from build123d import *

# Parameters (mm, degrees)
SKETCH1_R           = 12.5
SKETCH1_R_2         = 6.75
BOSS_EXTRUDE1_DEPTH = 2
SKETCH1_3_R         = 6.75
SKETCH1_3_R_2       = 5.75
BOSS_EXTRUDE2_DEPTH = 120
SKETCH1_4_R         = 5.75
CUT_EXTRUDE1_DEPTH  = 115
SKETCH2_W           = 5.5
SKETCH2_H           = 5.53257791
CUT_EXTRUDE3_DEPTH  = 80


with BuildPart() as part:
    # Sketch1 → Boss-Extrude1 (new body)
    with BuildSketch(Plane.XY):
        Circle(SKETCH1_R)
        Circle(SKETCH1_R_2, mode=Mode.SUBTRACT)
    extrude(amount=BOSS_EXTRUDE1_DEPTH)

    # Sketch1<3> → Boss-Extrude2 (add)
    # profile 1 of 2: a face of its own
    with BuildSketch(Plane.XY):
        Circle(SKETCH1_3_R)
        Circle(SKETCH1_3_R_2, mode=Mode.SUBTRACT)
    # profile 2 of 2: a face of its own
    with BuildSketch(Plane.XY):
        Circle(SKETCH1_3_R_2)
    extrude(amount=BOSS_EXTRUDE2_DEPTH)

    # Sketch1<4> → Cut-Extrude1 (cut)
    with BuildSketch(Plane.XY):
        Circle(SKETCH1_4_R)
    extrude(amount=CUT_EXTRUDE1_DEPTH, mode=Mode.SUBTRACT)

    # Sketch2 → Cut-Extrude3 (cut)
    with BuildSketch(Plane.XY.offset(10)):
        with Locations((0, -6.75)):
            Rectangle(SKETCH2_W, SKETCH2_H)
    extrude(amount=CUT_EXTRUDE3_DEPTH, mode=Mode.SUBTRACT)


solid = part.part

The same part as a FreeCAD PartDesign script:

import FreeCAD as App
import Part
import Sketcher
Q = App.Units.Quantity


def add_polygon(sketch, points):
    """Adds a closed chain of lines whose ends are joined by coincident constraints."""
    first, n = sketch.GeometryCount, len(points)
    for a, b in zip(points, points[1:] + points[:1]):
        sketch.addGeometry(Part.LineSegment(App.Vector(*a, 0), App.Vector(*b, 0)), False)
    for i in range(n):
        sketch.addConstraint(Sketcher.Constraint("Coincident", first + i, 2, first + (i + 1) % n, 1))

doc = App.newDocument("Part")
body = doc.addObject("PartDesign::Body", "Body")

sketch1 = body.newObject("Sketcher::SketchObject", "Sketch")
sketch1.AttachmentSupport = (doc.getObject("XY_Plane"), [""])
sketch1.MapMode = "FlatFace"
sketch1.addGeometry([
    Part.Circle(App.Vector(0, 0, 0), App.Vector(0, 0, 1), 12),
    Part.Circle(App.Vector(0, 0, 0), App.Vector(0, 0, 1), 7),
], False)
sketch1.addConstraint([
    Sketcher.Constraint("Coincident", 0, 3, -1, 1),
    Sketcher.Constraint("Coincident", 1, 3, -1, 1),
    Sketcher.Constraint("Diameter", 0, Q("25 mm")),
    Sketcher.Constraint("Diameter", 1, Q("13.5 mm")),
])
pad1 = body.newObject("PartDesign::Pad", "Pad")
pad1.Profile = sketch1
pad1.Length = 2

sketch2 = body.newObject("Sketcher::SketchObject", "Sketch001")
sketch2.AttachmentSupport = (doc.getObject("XY_Plane"), [""])
sketch2.MapMode = "FlatFace"
sketch2.addGeometry(Part.Circle(App.Vector(0, 0, 0), App.Vector(0, 0, 1), 7), False)
sketch2.addConstraint([
    Sketcher.Constraint("Coincident", 0, 3, -1, 1),
    Sketcher.Constraint("Diameter", 0, Q("13.5 mm")),
])
pad2 = body.newObject("PartDesign::Pad", "Pad001")
pad2.Profile = sketch2
pad2.Length = 120

sketch3 = body.newObject("Sketcher::SketchObject", "Sketch002")
sketch3.AttachmentSupport = (doc.getObject("XY_Plane"), [""])
sketch3.MapMode = "FlatFace"
sketch3.addGeometry(Part.Circle(App.Vector(0, 0, 0), App.Vector(0, 0, 1), 6), False)
sketch3.addConstraint([
    Sketcher.Constraint("Coincident", 0, 3, -1, 1),
    Sketcher.Constraint("Diameter", 0, Q("11.5 mm")),
])
pocket1 = body.newObject("PartDesign::Pocket", "Pocket")
pocket1.Profile = sketch3
pocket1.Length = 115
pocket1.Reversed = True

sketch4 = body.newObject("Sketcher::SketchObject", "Sketch003")
sketch4.AttachmentSupport = (doc.getObject("XY_Plane"), [""])
sketch4.MapMode = "FlatFace"
sketch4.AttachmentOffset = App.Placement(App.Vector(0, 0, 10), App.Rotation())
add_polygon(sketch4, [(-3, -4), (-3, -10), (3, -10), (3, -4)])
sketch4.addConstraint([
    Sketcher.Constraint("Vertical", 0),
    Sketcher.Constraint("Horizontal", 1),
    Sketcher.Constraint("Vertical", 2),
    Sketcher.Constraint("Horizontal", 3),
    Sketcher.Constraint("DistanceX", 1, 1, 1, 2, Q("5.5 mm")),
    Sketcher.Constraint("DistanceX", 0, 2, -1, 1, Q("2.75 mm")),
    Sketcher.Constraint("DistanceY", 0, 2, 0, 1, Q("5.532578 mm")),
    Sketcher.Constraint("DistanceY", 0, 2, -1, 1, Q("9.516289 mm")),
])
pocket2 = body.newObject("PartDesign::Pocket", "Pocket001")
pocket2.Profile = sketch4
pocket2.Length = 80
pocket2.Reversed = True

doc.recompute()
